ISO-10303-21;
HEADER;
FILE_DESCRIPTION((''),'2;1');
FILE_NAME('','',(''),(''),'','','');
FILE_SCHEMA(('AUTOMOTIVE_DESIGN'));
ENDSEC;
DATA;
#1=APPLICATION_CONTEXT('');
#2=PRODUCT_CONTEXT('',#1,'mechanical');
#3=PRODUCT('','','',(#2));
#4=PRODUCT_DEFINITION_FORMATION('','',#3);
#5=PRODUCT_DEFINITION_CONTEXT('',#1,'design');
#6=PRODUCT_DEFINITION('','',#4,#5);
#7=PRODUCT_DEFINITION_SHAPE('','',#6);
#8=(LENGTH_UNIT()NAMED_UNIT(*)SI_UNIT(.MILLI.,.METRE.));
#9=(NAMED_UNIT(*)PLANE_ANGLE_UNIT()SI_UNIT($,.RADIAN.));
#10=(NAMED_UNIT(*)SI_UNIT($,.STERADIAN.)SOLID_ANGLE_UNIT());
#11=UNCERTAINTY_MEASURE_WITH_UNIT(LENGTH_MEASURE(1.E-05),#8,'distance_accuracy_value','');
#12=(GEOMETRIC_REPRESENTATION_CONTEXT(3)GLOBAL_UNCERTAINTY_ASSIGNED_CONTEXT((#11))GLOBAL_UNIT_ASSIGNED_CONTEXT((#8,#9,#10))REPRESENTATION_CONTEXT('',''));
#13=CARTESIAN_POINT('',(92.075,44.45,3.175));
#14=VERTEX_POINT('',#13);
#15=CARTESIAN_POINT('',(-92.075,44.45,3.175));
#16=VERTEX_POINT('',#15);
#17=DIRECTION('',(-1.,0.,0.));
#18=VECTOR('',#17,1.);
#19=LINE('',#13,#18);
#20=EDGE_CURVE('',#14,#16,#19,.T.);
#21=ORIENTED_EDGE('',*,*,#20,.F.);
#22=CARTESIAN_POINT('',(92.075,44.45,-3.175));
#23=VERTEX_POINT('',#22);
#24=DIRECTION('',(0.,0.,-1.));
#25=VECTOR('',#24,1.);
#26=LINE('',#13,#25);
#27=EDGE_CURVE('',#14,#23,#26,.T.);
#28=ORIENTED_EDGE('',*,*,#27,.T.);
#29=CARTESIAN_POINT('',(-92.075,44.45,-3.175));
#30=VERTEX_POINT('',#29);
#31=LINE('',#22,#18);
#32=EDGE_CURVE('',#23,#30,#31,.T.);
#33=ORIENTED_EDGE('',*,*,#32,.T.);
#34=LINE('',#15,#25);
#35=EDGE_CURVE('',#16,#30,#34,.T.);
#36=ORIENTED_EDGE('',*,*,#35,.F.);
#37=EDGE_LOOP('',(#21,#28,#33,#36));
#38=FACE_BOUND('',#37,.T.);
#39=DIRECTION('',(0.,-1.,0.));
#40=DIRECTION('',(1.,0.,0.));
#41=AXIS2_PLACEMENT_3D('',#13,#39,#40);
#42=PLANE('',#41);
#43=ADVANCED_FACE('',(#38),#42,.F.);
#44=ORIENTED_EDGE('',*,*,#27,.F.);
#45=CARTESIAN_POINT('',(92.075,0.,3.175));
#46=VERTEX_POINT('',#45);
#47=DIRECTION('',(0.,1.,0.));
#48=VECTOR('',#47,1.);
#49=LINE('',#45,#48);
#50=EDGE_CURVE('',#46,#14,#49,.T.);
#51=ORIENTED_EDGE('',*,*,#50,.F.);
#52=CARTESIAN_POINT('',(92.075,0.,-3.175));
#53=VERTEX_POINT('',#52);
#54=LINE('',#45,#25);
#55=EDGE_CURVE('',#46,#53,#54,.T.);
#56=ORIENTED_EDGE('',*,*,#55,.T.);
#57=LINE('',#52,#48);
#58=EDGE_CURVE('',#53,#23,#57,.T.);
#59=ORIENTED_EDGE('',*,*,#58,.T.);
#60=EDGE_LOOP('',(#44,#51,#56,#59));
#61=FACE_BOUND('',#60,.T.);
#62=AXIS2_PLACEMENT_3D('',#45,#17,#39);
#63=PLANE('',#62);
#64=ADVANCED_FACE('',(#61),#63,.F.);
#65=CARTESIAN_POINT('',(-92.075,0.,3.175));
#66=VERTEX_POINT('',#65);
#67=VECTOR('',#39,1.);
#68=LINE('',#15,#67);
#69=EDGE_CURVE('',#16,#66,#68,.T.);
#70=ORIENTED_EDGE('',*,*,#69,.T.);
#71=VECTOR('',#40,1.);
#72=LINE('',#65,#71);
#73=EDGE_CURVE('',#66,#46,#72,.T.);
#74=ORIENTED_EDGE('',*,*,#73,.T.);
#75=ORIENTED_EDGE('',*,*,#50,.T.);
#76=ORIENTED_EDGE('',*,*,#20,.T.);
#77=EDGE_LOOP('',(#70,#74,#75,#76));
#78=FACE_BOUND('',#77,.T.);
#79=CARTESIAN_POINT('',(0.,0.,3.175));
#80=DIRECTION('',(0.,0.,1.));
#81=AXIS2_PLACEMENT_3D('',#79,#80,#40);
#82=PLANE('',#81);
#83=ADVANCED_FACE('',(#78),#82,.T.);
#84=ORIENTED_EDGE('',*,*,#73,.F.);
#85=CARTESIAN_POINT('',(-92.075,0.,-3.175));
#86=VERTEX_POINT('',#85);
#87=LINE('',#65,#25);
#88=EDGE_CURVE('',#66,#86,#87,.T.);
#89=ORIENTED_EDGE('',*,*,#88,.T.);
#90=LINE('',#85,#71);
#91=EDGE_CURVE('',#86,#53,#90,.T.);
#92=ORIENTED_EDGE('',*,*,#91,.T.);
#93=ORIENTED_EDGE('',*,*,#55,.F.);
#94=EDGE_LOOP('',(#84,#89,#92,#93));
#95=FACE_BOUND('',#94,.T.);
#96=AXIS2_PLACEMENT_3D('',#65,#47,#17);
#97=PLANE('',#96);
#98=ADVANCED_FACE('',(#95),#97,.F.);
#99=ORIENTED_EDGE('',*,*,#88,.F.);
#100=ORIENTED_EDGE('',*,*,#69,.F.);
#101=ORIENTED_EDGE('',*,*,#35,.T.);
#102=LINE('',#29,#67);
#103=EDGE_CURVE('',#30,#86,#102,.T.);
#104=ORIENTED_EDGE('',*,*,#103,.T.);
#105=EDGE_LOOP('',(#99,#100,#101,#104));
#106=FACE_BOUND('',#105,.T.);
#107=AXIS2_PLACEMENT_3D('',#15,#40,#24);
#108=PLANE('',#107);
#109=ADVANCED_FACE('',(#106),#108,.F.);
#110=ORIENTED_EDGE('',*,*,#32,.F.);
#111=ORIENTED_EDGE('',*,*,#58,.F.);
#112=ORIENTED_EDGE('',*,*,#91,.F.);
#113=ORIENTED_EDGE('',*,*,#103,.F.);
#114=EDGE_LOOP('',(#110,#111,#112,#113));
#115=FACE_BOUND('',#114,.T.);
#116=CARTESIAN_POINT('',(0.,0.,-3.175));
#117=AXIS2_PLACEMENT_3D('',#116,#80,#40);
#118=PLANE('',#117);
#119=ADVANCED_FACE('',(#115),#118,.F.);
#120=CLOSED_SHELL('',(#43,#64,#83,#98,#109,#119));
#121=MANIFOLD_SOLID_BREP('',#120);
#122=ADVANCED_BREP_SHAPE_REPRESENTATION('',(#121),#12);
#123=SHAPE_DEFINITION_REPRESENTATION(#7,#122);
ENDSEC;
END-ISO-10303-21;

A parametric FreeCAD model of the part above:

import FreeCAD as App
import Part
import Sketcher
Q = App.Units.Quantity

doc = App.newDocument("Part")
params = doc.addObject("Spreadsheet::Sheet", "Params")
for row, (alias, value) in enumerate([
    ("sketch1_width", "7.25 in"),
    ("sketch1_height", "1.75 in"),
    ("pad1_length", "0.25 in"),
], start=1):
    params.set(f"A{row}", alias)
    params.set(f"B{row}", "=" + value)
    params.setAlias(f"B{row}", alias)

body = doc.addObject("PartDesign::Body", "Body")

# Sketch on XY plane
sketch1 = doc.addObject("Sketcher::SketchObject", "Sketch")
body.addObject(sketch1)
sketch1.AttachmentSupport = (doc.XY_Plane, [""])
sketch1.MapMode = "FlatFace"
sketch1.addGeometry(Part.LineSegment(App.Vector(-92, 44, 0), App.Vector(-92, 0, 0)), False)
sketch1.addGeometry(Part.LineSegment(App.Vector(-92, 0, 0), App.Vector(92, 0, 0)), False)
sketch1.addGeometry(Part.LineSegment(App.Vector(92, 0, 0), App.Vector(92, 44, 0)), False)
sketch1.addGeometry(Part.LineSegment(App.Vector(92, 44, 0), App.Vector(-92, 44, 0)), False)
sketch1.addConstraint(Sketcher.Constraint("Coincident", 0, 2, 1, 1))
sketch1.addConstraint(Sketcher.Constraint("Coincident", 1, 2, 2, 1))
sketch1.addConstraint(Sketcher.Constraint("Coincident", 2, 2, 3, 1))
sketch1.addConstraint(Sketcher.Constraint("Coincident", 3, 2, 0, 1))
sketch1.addConstraint(Sketcher.Constraint("Vertical", 0))
sketch1.addConstraint(Sketcher.Constraint("Horizontal", 1))
sketch1.addConstraint(Sketcher.Constraint("Vertical", 2))
sketch1.addConstraint(Sketcher.Constraint("Horizontal", 3))
sketch1.addConstraint(Sketcher.Constraint("Symmetric", 0, 2, 1, 2, -1, 1))
sketch1.addConstraint(Sketcher.Constraint("DistanceX", 1, 1, 1, 2, Q("7.25 in")))
sketch1.addConstraint(Sketcher.Constraint("DistanceY", 0, 2, 0, 1, Q("1.75 in")))
sketch1.setExpression("Constraints[9]", "Params.sketch1_width")
sketch1.setExpression("Constraints[10]", "Params.sketch1_height")
pad1 = doc.addObject("PartDesign::Pad", "Pad")
body.addObject(pad1)
pad1.Profile = sketch1
pad1.setExpression("Length", "Params.pad1_length")
pad1.Midplane = True

doc.recompute()
